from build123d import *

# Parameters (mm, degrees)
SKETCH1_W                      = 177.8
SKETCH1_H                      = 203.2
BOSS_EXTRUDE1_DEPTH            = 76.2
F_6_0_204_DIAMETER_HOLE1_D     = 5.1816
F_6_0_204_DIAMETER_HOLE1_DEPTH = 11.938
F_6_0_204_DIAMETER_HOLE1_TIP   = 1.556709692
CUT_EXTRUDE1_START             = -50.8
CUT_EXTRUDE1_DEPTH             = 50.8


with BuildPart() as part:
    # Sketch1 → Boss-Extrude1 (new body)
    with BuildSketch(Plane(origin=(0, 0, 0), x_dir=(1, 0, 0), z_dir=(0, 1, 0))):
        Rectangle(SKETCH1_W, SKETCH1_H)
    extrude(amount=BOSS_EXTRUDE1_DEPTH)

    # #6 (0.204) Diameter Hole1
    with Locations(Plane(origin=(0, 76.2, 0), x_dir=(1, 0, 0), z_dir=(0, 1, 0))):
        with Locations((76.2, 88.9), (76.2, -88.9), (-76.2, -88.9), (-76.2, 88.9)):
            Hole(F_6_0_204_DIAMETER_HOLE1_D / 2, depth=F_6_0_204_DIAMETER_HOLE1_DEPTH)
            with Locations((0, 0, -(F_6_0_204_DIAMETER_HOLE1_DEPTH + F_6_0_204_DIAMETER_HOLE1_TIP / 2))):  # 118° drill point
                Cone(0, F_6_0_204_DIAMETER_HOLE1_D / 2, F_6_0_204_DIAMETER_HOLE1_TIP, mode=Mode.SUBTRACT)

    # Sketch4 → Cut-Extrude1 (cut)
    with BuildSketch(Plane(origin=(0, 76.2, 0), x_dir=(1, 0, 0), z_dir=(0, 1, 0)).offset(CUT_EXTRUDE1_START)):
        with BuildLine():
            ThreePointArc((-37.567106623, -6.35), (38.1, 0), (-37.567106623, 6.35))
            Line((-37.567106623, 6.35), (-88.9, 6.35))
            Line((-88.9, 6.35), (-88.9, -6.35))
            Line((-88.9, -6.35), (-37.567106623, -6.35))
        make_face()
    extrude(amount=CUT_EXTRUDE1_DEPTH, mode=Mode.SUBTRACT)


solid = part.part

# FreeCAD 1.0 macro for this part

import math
import FreeCAD as App
import Part
import Sketcher

V = App.Vector
Q = App.Units.Quantity

doc = App.newDocument("Part")
params = doc.addObject("Spreadsheet::Sheet", "Params")
for row, (alias, value) in enumerate([
    ("sketch1_width", "7 in"),
    ("sketch1_height", "8 in"),
    ("pad1_length", "3 in"),
    ("sketch2_diameter", "0.204 in"),
    ("hole_diameter", "0.204 in"),
    ("hole_depth", "0.47 in"),
    ("sketch3_radius", "1.5 in"),
    ("sketch3_height", "0.5 in"),
    ("pocket1_length", "2 in"),
], start=1):
    params.set(f"A{row}", alias)
    params.set(f"B{row}", "=" + value)
    params.setAlias(f"B{row}", alias)

body = doc.addObject("PartDesign::Body", "Body")

# Sketch on XZ plane
sketch1 = doc.addObject("Sketcher::SketchObject", "Sketch")
body.addObject(sketch1)
sketch1.AttachmentSupport = (doc.XZ_Plane, [""])
sketch1.MapMode = "FlatFace"
sketch1.addGeometry([
    Part.LineSegment(V(-89, -102, 0), V(-89, 102, 0)),
    Part.LineSegment(V(-89, 102, 0), V(89, 102, 0)),
    Part.LineSegment(V(89, 102, 0), V(89, -102, 0)),
    Part.LineSegment(V(89, -102, 0), V(-89, -102, 0)),
], False)
sketch1.addConstraint([
    Sketcher.Constraint("Coincident", 0, 2, 1, 1),
    Sketcher.Constraint("Coincident", 1, 2, 2, 1),
    Sketcher.Constraint("Coincident", 2, 2, 3, 1),
    Sketcher.Constraint("Coincident", 3, 2, 0, 1),
    Sketcher.Constraint("Vertical", 0),
    Sketcher.Constraint("Horizontal", 1),
    Sketcher.Constraint("Vertical", 2),
    Sketcher.Constraint("Horizontal", 3),
    Sketcher.Constraint("Symmetric", 0, 2, 2, 2, -1, 1),
    Sketcher.Constraint("DistanceX", 1, 1, 1, 2, Q("7 in")),
    Sketcher.Constraint("DistanceY", 0, 1, 0, 2, Q("8 in")),
])
sketch1.setExpression("Constraints[9]", "Params.sketch1_width")
sketch1.setExpression("Constraints[10]", "Params.sketch1_height")
pad1 = doc.addObject("PartDesign::Pad", "Pad")
body.addObject(pad1)
pad1.Profile = sketch1
pad1.setExpression("Length", "Params.pad1_length")
pad1.Reversed = True

# Sketch on XZ plane
sketch2 = doc.addObject("Sketcher::SketchObject", "Sketch001")
body.addObject(sketch2)
sketch2.AttachmentSupport = (doc.XZ_Plane, [""])
sketch2.MapMode = "FlatFace"
sketch2.AttachmentOffset = App.Placement(V(0, 0, -3 * 25.4), App.Rotation())
sketch2.addGeometry([
    Part.Circle(V(76.2, -88.9, 0), V(0, 0, 1), 2.6),
    Part.Circle(V(76.2, 88.9, 0), V(0, 0, 1), 2.6),
    Part.Circle(V(-76.2, 88.9, 0), V(0, 0, 1), 2.6),
    Part.Circle(V(-76.2, -88.9, 0), V(0, 0, 1), 2.6),
], False)
sketch2.addConstraint([
    Sketcher.Constraint("Equal", 0, 1),
    Sketcher.Constraint("Equal", 1, 2),
    Sketcher.Constraint("Equal", 2, 3),
    Sketcher.Constraint("Symmetric", 0, 3, 2, 3, -1, 1),
    Sketcher.Constraint("Symmetric", 1, 3, 3, 3, -1, 1),
    Sketcher.Constraint("Symmetric", 1, 3, 2, 3, -2),
    Sketcher.Constraint("Diameter", 0, Q("0.204 in")),
    Sketcher.Constraint("DistanceX", -1, 1, 0, 3, Q("3 in")),
    Sketcher.Constraint("DistanceY", 0, 3, 1, 3, Q("7 in")),
])
sketch2.setExpression("Constraints[6]", "Params.sketch2_diameter")
doc.recompute()
hole = doc.addObject("PartDesign::Hole", "Hole")
body.addObject(hole)
hole.Profile = sketch2
hole.ThreadType = "None"
hole.setExpression("Diameter", "Params.hole_diameter")
hole.DepthType = "Dimension"
hole.setExpression("Depth", "Params.hole_depth")
hole.DrillPoint = "Angled"
hole.DrillPointAngle = 118
hole.Reversed = True

# Sketch on XZ plane
sketch3 = doc.addObject("Sketcher::SketchObject", "Sketch002")
body.addObject(sketch3)
sketch3.AttachmentSupport = (doc.XZ_Plane, [""])
sketch3.MapMode = "FlatFace"
sketch3.AttachmentOffset = App.Placement(V(0, 0, -1 * 25.4), App.Rotation())
sketch3.addGeometry([
    Part.ArcOfCircle(Part.Circle(V(0, 0, 0), V(0, 0, 1), 38), math.radians(-170), math.radians(170)),
    Part.LineSegment(V(-38, -6, 0), V(-89, -6, 0)),
    Part.LineSegment(V(-89, -6, 0), V(-89, 6, 0)),
    Part.LineSegment(V(-89, 6, 0), V(-38, 6, 0)),
], False)
sketch3.addConstraint([
    Sketcher.Constraint("Coincident", 0, 1, 1, 1),
    Sketcher.Constraint("Coincident", 1, 2, 2, 1),
    Sketcher.Constraint("Coincident", 2, 2, 3, 1),
    Sketcher.Constraint("Coincident", 3, 2, 0, 2),
    Sketcher.Constraint("Horizontal", 1),
    Sketcher.Constraint("Vertical", 2),
    Sketcher.Constraint("Horizontal", 3),
    Sketcher.Constraint("Coincident", 0, 3, -1, 1),
    Sketcher.Constraint("Vertical", 0, 1, 3, 2),
    Sketcher.Constraint("Radius", 0, Q("1.5 in")),
    Sketcher.Constraint("DistanceY", 2, 1, 2, 2, Q("0.5 in")),
    Sketcher.Constraint("DistanceX", 1, 2, -1, 1, Q("3.5 in")),
])
sketch3.setExpression("Constraints[9]", "Params.sketch3_radius")
sketch3.setExpression("Constraints[10]", "Params.sketch3_height")
pocket1 = doc.addObject("PartDesign::Pocket", "Pocket")
body.addObject(pocket1)
pocket1.Profile = sketch3
pocket1.setExpression("Length", "Params.pocket1_length")

doc.recompute()
